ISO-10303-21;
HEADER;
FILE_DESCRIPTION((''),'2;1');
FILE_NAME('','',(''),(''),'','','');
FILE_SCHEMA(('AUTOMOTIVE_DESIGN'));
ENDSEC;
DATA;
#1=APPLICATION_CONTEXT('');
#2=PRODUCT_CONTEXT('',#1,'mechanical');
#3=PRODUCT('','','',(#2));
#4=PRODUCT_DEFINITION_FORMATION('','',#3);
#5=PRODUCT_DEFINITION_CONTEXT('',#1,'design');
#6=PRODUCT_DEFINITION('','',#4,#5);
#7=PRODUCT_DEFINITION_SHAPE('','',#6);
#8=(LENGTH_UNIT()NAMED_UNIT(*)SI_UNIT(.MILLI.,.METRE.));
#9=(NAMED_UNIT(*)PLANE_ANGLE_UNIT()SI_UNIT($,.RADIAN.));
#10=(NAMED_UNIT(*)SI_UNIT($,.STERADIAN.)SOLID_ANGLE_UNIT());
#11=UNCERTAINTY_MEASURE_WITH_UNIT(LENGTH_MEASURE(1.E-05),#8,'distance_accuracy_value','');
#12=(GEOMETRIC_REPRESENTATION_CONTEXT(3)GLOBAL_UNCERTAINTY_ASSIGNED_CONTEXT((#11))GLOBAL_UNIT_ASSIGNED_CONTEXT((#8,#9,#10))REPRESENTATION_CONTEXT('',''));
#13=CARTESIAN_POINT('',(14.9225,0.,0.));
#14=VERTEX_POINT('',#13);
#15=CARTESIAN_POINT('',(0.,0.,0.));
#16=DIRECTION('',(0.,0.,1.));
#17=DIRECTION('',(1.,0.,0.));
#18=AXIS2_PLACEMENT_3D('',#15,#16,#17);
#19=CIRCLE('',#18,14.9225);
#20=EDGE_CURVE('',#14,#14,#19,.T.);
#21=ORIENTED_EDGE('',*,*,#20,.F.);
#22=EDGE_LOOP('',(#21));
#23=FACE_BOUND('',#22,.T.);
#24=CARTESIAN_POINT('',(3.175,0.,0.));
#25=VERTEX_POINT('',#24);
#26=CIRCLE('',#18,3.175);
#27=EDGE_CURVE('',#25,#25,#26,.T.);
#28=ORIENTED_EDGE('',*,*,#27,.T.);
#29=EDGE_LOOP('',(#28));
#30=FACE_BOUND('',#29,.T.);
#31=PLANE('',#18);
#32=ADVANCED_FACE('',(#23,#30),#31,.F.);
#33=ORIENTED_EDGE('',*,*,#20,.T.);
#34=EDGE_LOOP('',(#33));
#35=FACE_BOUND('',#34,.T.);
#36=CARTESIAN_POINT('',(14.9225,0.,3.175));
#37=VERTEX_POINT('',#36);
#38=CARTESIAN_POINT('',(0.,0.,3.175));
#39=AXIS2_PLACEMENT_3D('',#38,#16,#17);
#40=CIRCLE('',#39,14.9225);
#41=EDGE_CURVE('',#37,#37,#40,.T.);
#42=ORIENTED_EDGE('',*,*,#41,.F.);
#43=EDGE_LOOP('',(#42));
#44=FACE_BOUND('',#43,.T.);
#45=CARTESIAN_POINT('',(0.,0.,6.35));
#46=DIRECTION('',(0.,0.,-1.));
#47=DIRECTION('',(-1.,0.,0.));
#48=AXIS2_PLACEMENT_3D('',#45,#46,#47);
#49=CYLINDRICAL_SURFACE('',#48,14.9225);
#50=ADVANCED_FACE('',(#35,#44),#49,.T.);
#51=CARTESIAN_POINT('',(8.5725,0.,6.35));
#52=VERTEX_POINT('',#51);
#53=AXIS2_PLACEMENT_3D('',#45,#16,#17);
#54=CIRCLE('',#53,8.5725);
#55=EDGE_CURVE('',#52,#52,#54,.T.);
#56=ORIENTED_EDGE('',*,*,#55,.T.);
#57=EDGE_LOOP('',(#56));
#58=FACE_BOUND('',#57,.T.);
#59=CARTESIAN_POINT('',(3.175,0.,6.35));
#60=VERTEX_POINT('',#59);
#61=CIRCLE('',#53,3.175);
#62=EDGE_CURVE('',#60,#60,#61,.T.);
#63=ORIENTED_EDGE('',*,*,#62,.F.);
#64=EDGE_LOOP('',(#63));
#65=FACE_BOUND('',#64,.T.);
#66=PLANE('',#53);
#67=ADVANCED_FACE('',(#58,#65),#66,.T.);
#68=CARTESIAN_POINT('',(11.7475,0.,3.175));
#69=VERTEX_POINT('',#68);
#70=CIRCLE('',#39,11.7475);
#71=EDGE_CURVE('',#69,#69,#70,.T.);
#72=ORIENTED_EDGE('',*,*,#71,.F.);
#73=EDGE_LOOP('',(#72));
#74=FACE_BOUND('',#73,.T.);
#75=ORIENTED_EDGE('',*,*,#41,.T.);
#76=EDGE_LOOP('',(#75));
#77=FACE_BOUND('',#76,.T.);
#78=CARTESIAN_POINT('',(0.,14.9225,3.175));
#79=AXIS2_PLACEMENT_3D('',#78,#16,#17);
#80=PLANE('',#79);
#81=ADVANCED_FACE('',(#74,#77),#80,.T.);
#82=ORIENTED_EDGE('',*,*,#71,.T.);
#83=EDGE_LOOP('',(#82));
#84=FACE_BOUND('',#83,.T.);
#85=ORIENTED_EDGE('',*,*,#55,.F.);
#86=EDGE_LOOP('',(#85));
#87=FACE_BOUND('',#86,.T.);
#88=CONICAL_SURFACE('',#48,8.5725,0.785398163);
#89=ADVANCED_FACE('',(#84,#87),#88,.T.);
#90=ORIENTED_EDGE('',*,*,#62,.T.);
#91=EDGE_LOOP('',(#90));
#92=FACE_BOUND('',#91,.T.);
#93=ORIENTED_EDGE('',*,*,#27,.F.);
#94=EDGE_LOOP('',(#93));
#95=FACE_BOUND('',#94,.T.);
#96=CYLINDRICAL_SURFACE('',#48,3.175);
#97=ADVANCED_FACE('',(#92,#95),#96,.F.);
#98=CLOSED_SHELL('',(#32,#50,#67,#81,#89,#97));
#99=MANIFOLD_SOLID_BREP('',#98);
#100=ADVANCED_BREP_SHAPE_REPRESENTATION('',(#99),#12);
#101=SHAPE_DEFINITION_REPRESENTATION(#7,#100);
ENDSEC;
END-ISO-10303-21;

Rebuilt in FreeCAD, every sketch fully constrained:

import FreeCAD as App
import Part
import Sketcher
Q = App.Units.Quantity

doc = App.newDocument("Part")
body = doc.addObject("PartDesign::Body", "Body")

sketch1 = doc.addObject("Sketcher::SketchObject", "Sketch")
body.addObject(sketch1)
sketch1.AttachmentSupport = (doc.XY_Plane, [""])
sketch1.MapMode = "FlatFace"
sketch1.addGeometry(Part.Circle(App.Vector(0, 0, 0), App.Vector(0, 0, 1), 14.9), False)
sketch1.addGeometry(Part.Circle(App.Vector(0, 0, 0), App.Vector(0, 0, 1), 3.2), False)
sketch1.addConstraint(Sketcher.Constraint("Coincident", 0, 3, -1, 1))
sketch1.addConstraint(Sketcher.Constraint("Coincident", 1, 3, -1, 1))
sketch1.addConstraint(Sketcher.Constraint("Diameter", 1, Q("0.25 in")))
sketch1.addConstraint(Sketcher.Constraint("Diameter", 0, Q("1.175 in")))
pad1 = doc.addObject("PartDesign::Pad", "Pad")
body.addObject(pad1)
pad1.Profile = sketch1
pad1.Length = Q("0.25 in")

sketch2 = doc.addObject("Sketcher::SketchObject", "Sketch001")
body.addObject(sketch2)
sketch2.AttachmentSupport = (doc.YZ_Plane, [""])
sketch2.MapMode = "FlatFace"
sketch2.addGeometry(Part.LineSegment(App.Vector(14.9, 3.2, 0), App.Vector(14.9, 6.3, 0)), False)
sketch2.addGeometry(Part.LineSegment(App.Vector(14.9, 6.3, 0), App.Vector(8.6, 6.3, 0)), False)
sketch2.addGeometry(Part.LineSegment(App.Vector(8.6, 6.3, 0), App.Vector(11.7, 3.2, 0)), False)
sketch2.addGeometry(Part.LineSegment(App.Vector(11.7, 3.2, 0), App.Vector(14.9, 3.2, 0)), False)
sketch2.addConstraint(Sketcher.Constraint("Coincident", 0, 2, 1, 1))
sketch2.addConstraint(Sketcher.Constraint("Coincident", 1, 2, 2, 1))
sketch2.addConstraint(Sketcher.Constraint("Coincident", 2, 2, 3, 1))
sketch2.addConstraint(Sketcher.Constraint("Coincident", 3, 2, 0, 1))
sketch2.addConstraint(Sketcher.Constraint("Vertical", 0))
sketch2.addConstraint(Sketcher.Constraint("Horizontal", 1))
sketch2.addConstraint(Sketcher.Constraint("Horizontal", 3))
sketch2.addConstraint(Sketcher.Constraint("Equal", 3, 0))
sketch2.addConstraint(Sketcher.Constraint("Angle", 2, Q("-45 deg")))
sketch2.addConstraint(Sketcher.Constraint("DistanceX", 1, 2, 1, 1, Q("0.25 in")))
sketch2.addConstraint(Sketcher.Constraint("DistanceY", -1, 1, 0, 2, Q("0.25 in")))
sketch2.addConstraint(Sketcher.Constraint("DistanceX", -1, 1, 0, 2, Q("0.5875 in")))
groove = doc.addObject("PartDesign::Groove", "Groove")
body.addObject(groove)
groove.Profile = sketch2
groove.ReferenceAxis = (sketch2, ["V_Axis"])
groove.Angle = 360

doc.recompute()
